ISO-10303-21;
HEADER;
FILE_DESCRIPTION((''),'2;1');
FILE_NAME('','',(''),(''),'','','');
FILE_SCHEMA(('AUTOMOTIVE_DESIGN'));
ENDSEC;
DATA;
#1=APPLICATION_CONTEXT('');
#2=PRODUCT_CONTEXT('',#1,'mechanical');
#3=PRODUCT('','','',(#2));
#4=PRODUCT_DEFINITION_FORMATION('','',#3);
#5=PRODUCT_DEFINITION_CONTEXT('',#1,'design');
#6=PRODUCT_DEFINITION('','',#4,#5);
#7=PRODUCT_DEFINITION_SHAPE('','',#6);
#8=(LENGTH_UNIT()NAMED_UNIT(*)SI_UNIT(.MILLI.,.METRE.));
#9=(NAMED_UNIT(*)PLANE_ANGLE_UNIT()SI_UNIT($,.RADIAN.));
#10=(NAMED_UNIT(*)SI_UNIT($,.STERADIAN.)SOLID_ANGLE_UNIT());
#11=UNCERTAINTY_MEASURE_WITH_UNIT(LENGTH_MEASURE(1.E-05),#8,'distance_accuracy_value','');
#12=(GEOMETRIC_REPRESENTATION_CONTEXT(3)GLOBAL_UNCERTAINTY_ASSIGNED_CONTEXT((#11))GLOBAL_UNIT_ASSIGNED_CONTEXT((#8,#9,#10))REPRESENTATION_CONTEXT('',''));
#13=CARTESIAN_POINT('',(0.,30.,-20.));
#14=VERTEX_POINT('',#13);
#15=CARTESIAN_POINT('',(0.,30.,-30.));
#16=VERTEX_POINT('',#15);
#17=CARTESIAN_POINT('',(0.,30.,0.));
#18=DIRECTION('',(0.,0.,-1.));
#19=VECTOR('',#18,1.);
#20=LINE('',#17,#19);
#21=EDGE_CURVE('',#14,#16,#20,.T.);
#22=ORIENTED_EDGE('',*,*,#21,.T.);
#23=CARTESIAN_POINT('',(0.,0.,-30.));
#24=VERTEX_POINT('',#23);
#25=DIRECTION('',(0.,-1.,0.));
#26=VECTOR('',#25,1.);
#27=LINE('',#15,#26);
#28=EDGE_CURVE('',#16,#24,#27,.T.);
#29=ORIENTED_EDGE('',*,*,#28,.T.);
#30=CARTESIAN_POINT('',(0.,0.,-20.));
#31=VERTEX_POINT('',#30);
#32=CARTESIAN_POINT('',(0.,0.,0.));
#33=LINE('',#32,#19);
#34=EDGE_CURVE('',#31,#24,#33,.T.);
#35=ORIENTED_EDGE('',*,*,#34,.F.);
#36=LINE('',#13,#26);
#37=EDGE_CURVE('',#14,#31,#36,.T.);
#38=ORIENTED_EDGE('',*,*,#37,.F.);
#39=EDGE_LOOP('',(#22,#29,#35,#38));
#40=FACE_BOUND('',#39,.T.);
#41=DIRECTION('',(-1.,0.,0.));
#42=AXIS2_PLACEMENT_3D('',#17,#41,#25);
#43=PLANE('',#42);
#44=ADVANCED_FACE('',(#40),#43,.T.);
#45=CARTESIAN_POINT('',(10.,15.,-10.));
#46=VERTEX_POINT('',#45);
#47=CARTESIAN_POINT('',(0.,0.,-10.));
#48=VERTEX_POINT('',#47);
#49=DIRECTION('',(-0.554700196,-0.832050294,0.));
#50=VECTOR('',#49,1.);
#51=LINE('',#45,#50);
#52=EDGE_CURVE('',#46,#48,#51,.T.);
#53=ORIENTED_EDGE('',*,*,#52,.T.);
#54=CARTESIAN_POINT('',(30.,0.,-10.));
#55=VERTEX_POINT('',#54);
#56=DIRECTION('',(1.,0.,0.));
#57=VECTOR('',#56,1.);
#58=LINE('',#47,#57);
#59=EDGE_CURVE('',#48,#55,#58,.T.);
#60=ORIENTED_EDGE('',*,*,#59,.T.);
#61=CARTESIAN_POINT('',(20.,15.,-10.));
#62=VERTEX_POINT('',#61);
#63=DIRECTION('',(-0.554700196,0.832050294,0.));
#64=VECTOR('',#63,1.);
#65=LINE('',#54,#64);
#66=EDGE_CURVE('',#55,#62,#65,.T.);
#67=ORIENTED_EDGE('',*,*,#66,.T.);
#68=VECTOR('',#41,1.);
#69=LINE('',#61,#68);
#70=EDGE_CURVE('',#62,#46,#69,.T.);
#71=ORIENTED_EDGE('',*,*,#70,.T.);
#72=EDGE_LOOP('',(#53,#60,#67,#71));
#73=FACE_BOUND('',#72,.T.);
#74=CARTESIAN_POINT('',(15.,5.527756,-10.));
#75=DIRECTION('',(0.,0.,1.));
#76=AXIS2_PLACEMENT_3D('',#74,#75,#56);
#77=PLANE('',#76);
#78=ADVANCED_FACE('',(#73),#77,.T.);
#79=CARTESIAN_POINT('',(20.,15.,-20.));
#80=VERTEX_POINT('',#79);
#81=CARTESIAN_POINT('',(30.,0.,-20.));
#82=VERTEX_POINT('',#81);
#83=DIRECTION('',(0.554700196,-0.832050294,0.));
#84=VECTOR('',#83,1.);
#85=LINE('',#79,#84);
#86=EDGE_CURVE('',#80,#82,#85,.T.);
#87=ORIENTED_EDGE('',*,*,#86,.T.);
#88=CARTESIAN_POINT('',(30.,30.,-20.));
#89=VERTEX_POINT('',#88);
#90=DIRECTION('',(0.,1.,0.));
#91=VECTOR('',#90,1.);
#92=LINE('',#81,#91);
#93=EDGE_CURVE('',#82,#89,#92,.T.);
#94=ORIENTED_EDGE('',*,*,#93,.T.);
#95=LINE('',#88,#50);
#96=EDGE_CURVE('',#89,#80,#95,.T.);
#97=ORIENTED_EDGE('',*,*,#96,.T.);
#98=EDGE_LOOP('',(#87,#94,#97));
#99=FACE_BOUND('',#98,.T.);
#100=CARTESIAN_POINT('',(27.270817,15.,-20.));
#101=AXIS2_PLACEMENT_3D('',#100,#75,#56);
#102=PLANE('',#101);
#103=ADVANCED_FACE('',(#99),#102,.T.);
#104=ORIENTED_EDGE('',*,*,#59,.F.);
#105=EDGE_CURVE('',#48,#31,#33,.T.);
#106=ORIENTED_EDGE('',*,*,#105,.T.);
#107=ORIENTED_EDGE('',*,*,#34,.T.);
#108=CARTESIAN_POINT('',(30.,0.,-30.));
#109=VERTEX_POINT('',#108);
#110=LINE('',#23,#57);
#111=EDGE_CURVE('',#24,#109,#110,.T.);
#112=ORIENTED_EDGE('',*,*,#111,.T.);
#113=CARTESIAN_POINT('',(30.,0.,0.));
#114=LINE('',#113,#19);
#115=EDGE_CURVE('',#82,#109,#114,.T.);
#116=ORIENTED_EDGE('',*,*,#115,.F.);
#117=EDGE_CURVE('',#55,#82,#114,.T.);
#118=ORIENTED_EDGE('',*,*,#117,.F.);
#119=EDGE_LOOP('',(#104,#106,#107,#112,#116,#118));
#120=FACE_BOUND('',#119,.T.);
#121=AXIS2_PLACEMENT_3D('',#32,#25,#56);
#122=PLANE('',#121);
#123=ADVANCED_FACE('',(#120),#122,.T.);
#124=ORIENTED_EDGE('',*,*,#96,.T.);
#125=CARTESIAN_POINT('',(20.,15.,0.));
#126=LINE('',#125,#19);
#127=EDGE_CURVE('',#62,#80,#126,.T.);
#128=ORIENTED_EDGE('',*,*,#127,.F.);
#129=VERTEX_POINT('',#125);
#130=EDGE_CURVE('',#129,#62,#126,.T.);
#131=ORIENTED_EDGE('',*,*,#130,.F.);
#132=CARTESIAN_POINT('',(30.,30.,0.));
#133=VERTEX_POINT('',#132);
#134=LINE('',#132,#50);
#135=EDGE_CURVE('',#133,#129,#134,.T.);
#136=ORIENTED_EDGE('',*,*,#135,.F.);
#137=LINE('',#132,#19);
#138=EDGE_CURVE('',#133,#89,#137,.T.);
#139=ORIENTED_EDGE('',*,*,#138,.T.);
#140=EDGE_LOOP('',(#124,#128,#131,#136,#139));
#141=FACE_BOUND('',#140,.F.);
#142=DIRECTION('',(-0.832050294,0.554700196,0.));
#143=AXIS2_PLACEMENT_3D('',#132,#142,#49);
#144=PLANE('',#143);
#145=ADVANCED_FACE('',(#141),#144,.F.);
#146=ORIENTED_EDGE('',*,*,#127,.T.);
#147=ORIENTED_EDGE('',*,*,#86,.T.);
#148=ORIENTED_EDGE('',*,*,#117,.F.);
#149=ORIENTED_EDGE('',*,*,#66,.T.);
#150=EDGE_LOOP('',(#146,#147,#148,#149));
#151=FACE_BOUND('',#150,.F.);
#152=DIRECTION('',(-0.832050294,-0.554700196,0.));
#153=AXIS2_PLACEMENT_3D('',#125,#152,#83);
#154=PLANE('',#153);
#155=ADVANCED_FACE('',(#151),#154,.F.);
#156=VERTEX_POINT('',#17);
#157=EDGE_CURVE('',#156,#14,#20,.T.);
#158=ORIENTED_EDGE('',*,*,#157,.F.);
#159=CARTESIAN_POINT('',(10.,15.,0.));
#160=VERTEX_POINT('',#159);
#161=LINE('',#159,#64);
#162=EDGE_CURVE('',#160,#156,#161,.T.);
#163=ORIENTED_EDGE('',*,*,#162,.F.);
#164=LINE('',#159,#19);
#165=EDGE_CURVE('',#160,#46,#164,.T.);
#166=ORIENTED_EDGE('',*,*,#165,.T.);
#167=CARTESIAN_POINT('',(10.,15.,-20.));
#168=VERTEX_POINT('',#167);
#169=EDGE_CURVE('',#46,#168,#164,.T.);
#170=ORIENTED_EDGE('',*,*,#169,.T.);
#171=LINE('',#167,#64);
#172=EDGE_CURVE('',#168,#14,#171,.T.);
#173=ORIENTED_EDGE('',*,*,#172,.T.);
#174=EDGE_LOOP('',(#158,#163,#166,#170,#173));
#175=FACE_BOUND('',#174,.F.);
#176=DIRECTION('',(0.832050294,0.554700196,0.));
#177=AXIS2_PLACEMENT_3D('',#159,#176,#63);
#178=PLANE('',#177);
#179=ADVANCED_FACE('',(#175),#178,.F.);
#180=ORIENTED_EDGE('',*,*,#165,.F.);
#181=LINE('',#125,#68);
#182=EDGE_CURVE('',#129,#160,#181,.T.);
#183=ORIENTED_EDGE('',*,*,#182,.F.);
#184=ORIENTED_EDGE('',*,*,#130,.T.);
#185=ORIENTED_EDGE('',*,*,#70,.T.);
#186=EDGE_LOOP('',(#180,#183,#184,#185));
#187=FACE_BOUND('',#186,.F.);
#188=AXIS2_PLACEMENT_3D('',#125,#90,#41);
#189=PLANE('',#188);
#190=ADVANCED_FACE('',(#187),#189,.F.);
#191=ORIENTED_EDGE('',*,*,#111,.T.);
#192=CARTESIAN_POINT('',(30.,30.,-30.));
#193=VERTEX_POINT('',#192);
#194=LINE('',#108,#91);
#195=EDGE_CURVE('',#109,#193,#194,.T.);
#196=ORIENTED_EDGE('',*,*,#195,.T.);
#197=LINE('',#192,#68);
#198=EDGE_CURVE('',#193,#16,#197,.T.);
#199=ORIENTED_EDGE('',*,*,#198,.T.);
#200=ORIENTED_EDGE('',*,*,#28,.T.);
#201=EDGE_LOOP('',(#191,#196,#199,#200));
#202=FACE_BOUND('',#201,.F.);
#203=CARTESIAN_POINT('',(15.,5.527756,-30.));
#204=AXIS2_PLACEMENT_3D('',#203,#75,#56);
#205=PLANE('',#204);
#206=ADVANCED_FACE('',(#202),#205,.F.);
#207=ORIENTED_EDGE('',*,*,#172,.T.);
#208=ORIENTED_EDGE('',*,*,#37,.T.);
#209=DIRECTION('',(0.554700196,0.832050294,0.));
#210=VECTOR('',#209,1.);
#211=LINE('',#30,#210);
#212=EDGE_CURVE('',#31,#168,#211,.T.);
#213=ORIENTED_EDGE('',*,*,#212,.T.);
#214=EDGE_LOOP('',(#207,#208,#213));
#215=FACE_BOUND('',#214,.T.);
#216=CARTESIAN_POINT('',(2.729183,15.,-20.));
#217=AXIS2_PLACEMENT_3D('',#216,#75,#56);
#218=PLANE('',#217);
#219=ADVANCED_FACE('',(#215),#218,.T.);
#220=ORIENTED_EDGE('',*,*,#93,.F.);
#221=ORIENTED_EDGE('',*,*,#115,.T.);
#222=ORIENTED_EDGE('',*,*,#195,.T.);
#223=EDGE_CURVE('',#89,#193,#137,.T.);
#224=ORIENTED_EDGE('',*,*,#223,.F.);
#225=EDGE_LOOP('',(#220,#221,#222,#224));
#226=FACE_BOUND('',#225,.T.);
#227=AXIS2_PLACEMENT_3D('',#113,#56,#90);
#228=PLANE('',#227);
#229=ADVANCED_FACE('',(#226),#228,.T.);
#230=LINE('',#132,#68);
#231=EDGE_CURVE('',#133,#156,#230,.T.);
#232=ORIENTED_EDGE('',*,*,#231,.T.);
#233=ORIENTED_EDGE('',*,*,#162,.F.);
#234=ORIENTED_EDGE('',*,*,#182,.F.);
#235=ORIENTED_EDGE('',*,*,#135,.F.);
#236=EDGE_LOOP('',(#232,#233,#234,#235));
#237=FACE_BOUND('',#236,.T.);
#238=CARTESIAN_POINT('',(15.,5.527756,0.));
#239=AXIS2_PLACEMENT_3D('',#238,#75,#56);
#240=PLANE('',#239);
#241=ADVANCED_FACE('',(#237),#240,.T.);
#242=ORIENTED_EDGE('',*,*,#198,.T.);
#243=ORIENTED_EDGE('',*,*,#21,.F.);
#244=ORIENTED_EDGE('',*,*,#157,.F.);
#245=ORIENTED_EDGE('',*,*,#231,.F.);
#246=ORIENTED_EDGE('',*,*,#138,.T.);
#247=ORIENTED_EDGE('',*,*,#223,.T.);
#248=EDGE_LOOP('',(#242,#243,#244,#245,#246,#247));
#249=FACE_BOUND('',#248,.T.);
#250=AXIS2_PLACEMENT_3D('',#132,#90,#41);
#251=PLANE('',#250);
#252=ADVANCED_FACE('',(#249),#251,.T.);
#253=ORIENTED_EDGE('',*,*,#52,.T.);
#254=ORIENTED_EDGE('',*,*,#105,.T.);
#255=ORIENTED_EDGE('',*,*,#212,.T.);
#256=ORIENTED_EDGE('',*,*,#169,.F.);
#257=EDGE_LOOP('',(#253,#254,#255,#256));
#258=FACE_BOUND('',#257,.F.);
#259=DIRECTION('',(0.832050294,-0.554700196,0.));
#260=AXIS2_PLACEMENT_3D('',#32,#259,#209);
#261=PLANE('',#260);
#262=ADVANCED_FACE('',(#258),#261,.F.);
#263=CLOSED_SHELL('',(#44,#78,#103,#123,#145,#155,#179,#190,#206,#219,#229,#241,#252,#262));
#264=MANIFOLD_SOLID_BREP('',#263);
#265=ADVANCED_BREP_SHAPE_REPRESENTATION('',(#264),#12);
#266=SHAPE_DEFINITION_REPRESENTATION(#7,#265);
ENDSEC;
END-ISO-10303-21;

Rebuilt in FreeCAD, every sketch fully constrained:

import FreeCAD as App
import Part
import Sketcher


def add_polygon(sketch, points):
    """Adds a closed chain of lines whose ends are joined by coincident constraints."""
    first, n = sketch.GeometryCount, len(points)
    for a, b in zip(points, points[1:] + points[:1]):
        sketch.addGeometry(Part.LineSegment(App.Vector(*a, 0), App.Vector(*b, 0)), False)
    for i in range(n):
        sketch.addConstraint(Sketcher.Constraint("Coincident", first + i, 2, first + (i + 1) % n, 1))

doc = App.newDocument("Part")
body = doc.addObject("PartDesign::Body", "Body")

sketch1 = doc.addObject("Sketcher::SketchObject", "Sketch")
body.addObject(sketch1)
sketch1.AttachmentSupport = (doc.XY_Plane, [""])
sketch1.MapMode = "FlatFace"
add_polygon(sketch1, [(0, 0), (30, 0), (30, 30), (0, 30)])
sketch1.addConstraint(Sketcher.Constraint("Horizontal", 0))
sketch1.addConstraint(Sketcher.Constraint("Vertical", 1))
sketch1.addConstraint(Sketcher.Constraint("Horizontal", 2))
sketch1.addConstraint(Sketcher.Constraint("Vertical", 3))
sketch1.addConstraint(Sketcher.Constraint("Coincident", 3, 2, -1, 1))
sketch1.addConstraint(Sketcher.Constraint("Equal", 2, 1))
sketch1.addConstraint(Sketcher.Constraint("DistanceX", 0, 1, 0, 2, 30.0))
pad1 = doc.addObject("PartDesign::Pad", "Pad")
body.addObject(pad1)
pad1.Profile = sketch1
pad1.Length = 30
pad1.Reversed = True

sketch2 = doc.addObject("Sketcher::SketchObject", "Sketch001")
body.addObject(sketch2)
sketch2.AttachmentSupport = (doc.XY_Plane, [""])
sketch2.MapMode = "FlatFace"
add_polygon(sketch2, [(10, 15), (0, 0), (30, 0), (20, 15)])
sketch2.addConstraint(Sketcher.Constraint("Horizontal", 1))
sketch2.addConstraint(Sketcher.Constraint("Horizontal", 3))
sketch2.addConstraint(Sketcher.Constraint("Coincident", 0, 2, -1, 1))
sketch2.addConstraint(Sketcher.Constraint("Equal", 0, 2))
sketch2.addConstraint(Sketcher.Constraint("DistanceX", 1, 1, 1, 2, 30.0))
sketch2.addConstraint(Sketcher.Constraint("DistanceX", 3, 2, 3, 1, 10.0))
sketch2.addConstraint(Sketcher.Constraint("DistanceY", -1, 1, 2, 2, 15.0))
pocket1 = doc.addObject("PartDesign::Pocket", "Pocket")
body.addObject(pocket1)
pocket1.Profile = sketch2
pocket1.Length = 10

sketch3 = doc.addObject("Sketcher::SketchObject", "Sketch002")
body.addObject(sketch3)
sketch3.AttachmentSupport = (doc.XY_Plane, [""])
sketch3.MapMode = "FlatFace"
add_polygon(sketch3, [(0, 30), (0, 0), (10, 15)])
add_polygon(sketch3, [(20, 15), (30, 0), (30, 30)])
sketch3.addConstraint(Sketcher.Constraint("Vertical", 0))
sketch3.addConstraint(Sketcher.Constraint("Vertical", 4))
sketch3.addConstraint(Sketcher.Constraint("Coincident", 0, 2, -1, 1))
sketch3.addConstraint(Sketcher.Constraint("PointOnObject", 3, 2, -1))
sketch3.addConstraint(Sketcher.Constraint("Parallel", 2, 3))
sketch3.addConstraint(Sketcher.Constraint("Parallel", 1, 5))
sketch3.addConstraint(Sketcher.Constraint("Horizontal", 2, 2, 4, 2))
sketch3.addConstraint(Sketcher.Constraint("Horizontal", 1, 2, 5, 2))
sketch3.addConstraint(Sketcher.Constraint("DistanceY", 0, 2, 0, 1, 30.0))
sketch3.addConstraint(Sketcher.Constraint("DistanceX", -1, 1, 1, 2, 10.0))
sketch3.addConstraint(Sketcher.Constraint("DistanceX", -1, 1, 3, 2, 30.0))
pocket2 = doc.addObject("PartDesign::Pocket", "Pocket001")
body.addObject(pocket2)
pocket2.Profile = sketch3
pocket2.Length = 20

doc.recompute()
